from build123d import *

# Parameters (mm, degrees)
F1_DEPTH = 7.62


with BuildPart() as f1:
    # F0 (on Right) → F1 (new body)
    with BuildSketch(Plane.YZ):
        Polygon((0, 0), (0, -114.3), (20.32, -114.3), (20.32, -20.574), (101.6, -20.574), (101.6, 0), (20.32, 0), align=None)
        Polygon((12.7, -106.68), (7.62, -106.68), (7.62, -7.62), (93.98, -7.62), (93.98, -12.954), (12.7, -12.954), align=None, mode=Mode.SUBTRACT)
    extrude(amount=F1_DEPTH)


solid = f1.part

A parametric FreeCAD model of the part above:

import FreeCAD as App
import Part
import Sketcher
Q = App.Units.Quantity


def add_polygon(sketch, points):
    """Adds a closed chain of lines whose ends are joined by coincident constraints."""
    first, n = sketch.GeometryCount, len(points)
    for a, b in zip(points, points[1:] + points[:1]):
        sketch.addGeometry(Part.LineSegment(App.Vector(*a, 0), App.Vector(*b, 0)), False)
    for i in range(n):
        sketch.addConstraint(Sketcher.Constraint("Coincident", first + i, 2, first + (i + 1) % n, 1))

doc = App.newDocument("Part")
body = doc.addObject("PartDesign::Body", "Body")

# Sketch on YZ plane
sketch1 = body.newObject("Sketcher::SketchObject", "Sketch")
sketch1.AttachmentSupport = (doc.getObject("YZ_Plane"), [""])
sketch1.MapMode = "FlatFace"
add_polygon(sketch1, [(0, 0), (0, -114), (20, -114), (20, -21), (102, -21), (102, 0)])  # lines 0-5
add_polygon(sketch1, [(13, -13), (13, -107), (8, -107), (8, -8), (94, -8), (94, -13)])  # lines 6-11
sketch1.addConstraint(Sketcher.Constraint("Vertical", 0))
sketch1.addConstraint(Sketcher.Constraint("Horizontal", 1))
sketch1.addConstraint(Sketcher.Constraint("Vertical", 2))
sketch1.addConstraint(Sketcher.Constraint("Horizontal", 3))
sketch1.addConstraint(Sketcher.Constraint("Vertical", 4))
sketch1.addConstraint(Sketcher.Constraint("Horizontal", 5))
sketch1.addConstraint(Sketcher.Constraint("Vertical", 6))
sketch1.addConstraint(Sketcher.Constraint("Horizontal", 7))
sketch1.addConstraint(Sketcher.Constraint("Vertical", 8))
sketch1.addConstraint(Sketcher.Constraint("Horizontal", 9))
sketch1.addConstraint(Sketcher.Constraint("Vertical", 10))
sketch1.addConstraint(Sketcher.Constraint("Horizontal", 11))
sketch1.addConstraint(Sketcher.Constraint("Coincident", 5, 2, -1, 1))
sketch1.addConstraint(Sketcher.Constraint("Equal", 3, 11))
sketch1.addConstraint(Sketcher.Constraint("Equal", 2, 6))
sketch1.addConstraint(Sketcher.Constraint("DistanceX", 5, 2, 5, 1, Q("4 in")))
sketch1.addConstraint(Sketcher.Constraint("DistanceX", 1, 1, 1, 2, Q("0.8 in")))
sketch1.addConstraint(Sketcher.Constraint("DistanceX", 7, 2, 7, 1, Q("0.2 in")))
sketch1.addConstraint(Sketcher.Constraint("DistanceY", 0, 2, 0, 1, Q("4.5 in")))
sketch1.addConstraint(Sketcher.Constraint("DistanceY", 8, 1, 8, 2, Q("3.9 in")))
sketch1.addConstraint(Sketcher.Constraint("DistanceY", 2, 1, 2, 2, Q("3.69 in")))
sketch1.addConstraint(Sketcher.Constraint("DistanceX", -1, 1, 6, 2, Q("0.5 in")))
sketch1.addConstraint(Sketcher.Constraint("DistanceY", 6, 2, -1, 1, Q("4.2 in")))
pad1 = body.newObject("PartDesign::Pad", "Pad")
pad1.Profile = sketch1
pad1.Length = Q("0.3 in")

doc.recompute()
